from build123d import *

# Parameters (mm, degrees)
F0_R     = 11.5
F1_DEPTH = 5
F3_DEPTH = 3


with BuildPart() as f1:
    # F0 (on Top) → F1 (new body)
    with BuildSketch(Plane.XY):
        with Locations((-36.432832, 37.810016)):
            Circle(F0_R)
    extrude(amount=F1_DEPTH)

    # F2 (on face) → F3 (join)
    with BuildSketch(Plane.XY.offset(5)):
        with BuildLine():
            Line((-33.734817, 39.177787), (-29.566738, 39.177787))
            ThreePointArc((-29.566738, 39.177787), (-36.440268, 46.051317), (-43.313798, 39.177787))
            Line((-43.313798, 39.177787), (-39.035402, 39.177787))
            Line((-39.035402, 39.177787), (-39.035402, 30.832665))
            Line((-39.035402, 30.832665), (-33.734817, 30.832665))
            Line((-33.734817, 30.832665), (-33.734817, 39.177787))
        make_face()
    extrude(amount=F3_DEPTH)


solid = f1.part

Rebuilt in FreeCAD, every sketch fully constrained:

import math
import FreeCAD as App
import Part
import Sketcher

doc = App.newDocument("Part")
body = doc.addObject("PartDesign::Body", "Body")

sketch1 = body.newObject("Sketcher::SketchObject", "Sketch")
sketch1.AttachmentSupport = (doc.getObject("XY_Plane"), [""])
sketch1.MapMode = "FlatFace"
sketch1.addGeometry(Part.Circle(App.Vector(-36.432832, 37.810016, 0), App.Vector(0, 0, 1), 11.5), False)
sketch1.addConstraint([
    Sketcher.Constraint("Diameter", 0, 23.0),
    Sketcher.Constraint("DistanceX", 0, 3, -1, 1, 36.432832),
    Sketcher.Constraint("DistanceY", -1, 1, 0, 3, 37.810016),
])
pad1 = body.newObject("PartDesign::Pad", "Pad")
pad1.Profile = sketch1
pad1.Length = 5

sketch2 = body.newObject("Sketcher::SketchObject", "Sketch001")
sketch2.AttachmentSupport = (doc.getObject("XY_Plane"), [""])
sketch2.MapMode = "FlatFace"
sketch2.AttachmentOffset = App.Placement(App.Vector(0, 0, 5), App.Rotation())
sketch2.addGeometry([
    Part.LineSegment(App.Vector(-33.734817, 39.177787, 0), App.Vector(-29.566738, 39.177787, 0)),
    Part.ArcOfCircle(Part.Circle(App.Vector(-36.440268, 39.177787, 0), App.Vector(0, 0, 1), 6.87353), math.radians(0), math.radians(180)),
    Part.LineSegment(App.Vector(-43.313798, 39.177787, 0), App.Vector(-39.035402, 39.177787, 0)),
    Part.LineSegment(App.Vector(-39.035402, 39.177787, 0), App.Vector(-39.035402, 30.832665, 0)),
    Part.LineSegment(App.Vector(-39.035402, 30.832665, 0), App.Vector(-33.734817, 30.832665, 0)),
    Part.LineSegment(App.Vector(-33.734817, 30.832665, 0), App.Vector(-33.734817, 39.177787, 0)),
], False)
sketch2.addConstraint([
    Sketcher.Constraint("Coincident", 0, 2, 1, 1),
    Sketcher.Constraint("Coincident", 1, 2, 2, 1),
    Sketcher.Constraint("Coincident", 2, 2, 3, 1),
    Sketcher.Constraint("Coincident", 3, 2, 4, 1),
    Sketcher.Constraint("Coincident", 4, 2, 5, 1),
    Sketcher.Constraint("Coincident", 5, 2, 0, 1),
    Sketcher.Constraint("Horizontal", 0),
    Sketcher.Constraint("Horizontal", 2),
    Sketcher.Constraint("Vertical", 3),
    Sketcher.Constraint("Horizontal", 4),
    Sketcher.Constraint("Vertical", 5),
    Sketcher.Constraint("Horizontal", 1, 3, 0, 2),
    Sketcher.Constraint("Horizontal", 0, 2, 1, 2),
    Sketcher.Constraint("Radius", 1, 6.87353),
    Sketcher.Constraint("DistanceX", 0, 1, 0, 2, 4.168079),
    Sketcher.Constraint("DistanceX", 1, 2, -1, 1, 43.313798),
    Sketcher.Constraint("DistanceX", 2, 2, -1, 1, 39.035402),
    Sketcher.Constraint("DistanceY", 3, 2, 3, 1, 8.345122),
    Sketcher.Constraint("DistanceY", -1, 1, 1, 3, 39.177787),
])
pad2 = body.newObject("PartDesign::Pad", "Pad001")
pad2.Profile = sketch2
pad2.Length = 3

doc.recompute()
